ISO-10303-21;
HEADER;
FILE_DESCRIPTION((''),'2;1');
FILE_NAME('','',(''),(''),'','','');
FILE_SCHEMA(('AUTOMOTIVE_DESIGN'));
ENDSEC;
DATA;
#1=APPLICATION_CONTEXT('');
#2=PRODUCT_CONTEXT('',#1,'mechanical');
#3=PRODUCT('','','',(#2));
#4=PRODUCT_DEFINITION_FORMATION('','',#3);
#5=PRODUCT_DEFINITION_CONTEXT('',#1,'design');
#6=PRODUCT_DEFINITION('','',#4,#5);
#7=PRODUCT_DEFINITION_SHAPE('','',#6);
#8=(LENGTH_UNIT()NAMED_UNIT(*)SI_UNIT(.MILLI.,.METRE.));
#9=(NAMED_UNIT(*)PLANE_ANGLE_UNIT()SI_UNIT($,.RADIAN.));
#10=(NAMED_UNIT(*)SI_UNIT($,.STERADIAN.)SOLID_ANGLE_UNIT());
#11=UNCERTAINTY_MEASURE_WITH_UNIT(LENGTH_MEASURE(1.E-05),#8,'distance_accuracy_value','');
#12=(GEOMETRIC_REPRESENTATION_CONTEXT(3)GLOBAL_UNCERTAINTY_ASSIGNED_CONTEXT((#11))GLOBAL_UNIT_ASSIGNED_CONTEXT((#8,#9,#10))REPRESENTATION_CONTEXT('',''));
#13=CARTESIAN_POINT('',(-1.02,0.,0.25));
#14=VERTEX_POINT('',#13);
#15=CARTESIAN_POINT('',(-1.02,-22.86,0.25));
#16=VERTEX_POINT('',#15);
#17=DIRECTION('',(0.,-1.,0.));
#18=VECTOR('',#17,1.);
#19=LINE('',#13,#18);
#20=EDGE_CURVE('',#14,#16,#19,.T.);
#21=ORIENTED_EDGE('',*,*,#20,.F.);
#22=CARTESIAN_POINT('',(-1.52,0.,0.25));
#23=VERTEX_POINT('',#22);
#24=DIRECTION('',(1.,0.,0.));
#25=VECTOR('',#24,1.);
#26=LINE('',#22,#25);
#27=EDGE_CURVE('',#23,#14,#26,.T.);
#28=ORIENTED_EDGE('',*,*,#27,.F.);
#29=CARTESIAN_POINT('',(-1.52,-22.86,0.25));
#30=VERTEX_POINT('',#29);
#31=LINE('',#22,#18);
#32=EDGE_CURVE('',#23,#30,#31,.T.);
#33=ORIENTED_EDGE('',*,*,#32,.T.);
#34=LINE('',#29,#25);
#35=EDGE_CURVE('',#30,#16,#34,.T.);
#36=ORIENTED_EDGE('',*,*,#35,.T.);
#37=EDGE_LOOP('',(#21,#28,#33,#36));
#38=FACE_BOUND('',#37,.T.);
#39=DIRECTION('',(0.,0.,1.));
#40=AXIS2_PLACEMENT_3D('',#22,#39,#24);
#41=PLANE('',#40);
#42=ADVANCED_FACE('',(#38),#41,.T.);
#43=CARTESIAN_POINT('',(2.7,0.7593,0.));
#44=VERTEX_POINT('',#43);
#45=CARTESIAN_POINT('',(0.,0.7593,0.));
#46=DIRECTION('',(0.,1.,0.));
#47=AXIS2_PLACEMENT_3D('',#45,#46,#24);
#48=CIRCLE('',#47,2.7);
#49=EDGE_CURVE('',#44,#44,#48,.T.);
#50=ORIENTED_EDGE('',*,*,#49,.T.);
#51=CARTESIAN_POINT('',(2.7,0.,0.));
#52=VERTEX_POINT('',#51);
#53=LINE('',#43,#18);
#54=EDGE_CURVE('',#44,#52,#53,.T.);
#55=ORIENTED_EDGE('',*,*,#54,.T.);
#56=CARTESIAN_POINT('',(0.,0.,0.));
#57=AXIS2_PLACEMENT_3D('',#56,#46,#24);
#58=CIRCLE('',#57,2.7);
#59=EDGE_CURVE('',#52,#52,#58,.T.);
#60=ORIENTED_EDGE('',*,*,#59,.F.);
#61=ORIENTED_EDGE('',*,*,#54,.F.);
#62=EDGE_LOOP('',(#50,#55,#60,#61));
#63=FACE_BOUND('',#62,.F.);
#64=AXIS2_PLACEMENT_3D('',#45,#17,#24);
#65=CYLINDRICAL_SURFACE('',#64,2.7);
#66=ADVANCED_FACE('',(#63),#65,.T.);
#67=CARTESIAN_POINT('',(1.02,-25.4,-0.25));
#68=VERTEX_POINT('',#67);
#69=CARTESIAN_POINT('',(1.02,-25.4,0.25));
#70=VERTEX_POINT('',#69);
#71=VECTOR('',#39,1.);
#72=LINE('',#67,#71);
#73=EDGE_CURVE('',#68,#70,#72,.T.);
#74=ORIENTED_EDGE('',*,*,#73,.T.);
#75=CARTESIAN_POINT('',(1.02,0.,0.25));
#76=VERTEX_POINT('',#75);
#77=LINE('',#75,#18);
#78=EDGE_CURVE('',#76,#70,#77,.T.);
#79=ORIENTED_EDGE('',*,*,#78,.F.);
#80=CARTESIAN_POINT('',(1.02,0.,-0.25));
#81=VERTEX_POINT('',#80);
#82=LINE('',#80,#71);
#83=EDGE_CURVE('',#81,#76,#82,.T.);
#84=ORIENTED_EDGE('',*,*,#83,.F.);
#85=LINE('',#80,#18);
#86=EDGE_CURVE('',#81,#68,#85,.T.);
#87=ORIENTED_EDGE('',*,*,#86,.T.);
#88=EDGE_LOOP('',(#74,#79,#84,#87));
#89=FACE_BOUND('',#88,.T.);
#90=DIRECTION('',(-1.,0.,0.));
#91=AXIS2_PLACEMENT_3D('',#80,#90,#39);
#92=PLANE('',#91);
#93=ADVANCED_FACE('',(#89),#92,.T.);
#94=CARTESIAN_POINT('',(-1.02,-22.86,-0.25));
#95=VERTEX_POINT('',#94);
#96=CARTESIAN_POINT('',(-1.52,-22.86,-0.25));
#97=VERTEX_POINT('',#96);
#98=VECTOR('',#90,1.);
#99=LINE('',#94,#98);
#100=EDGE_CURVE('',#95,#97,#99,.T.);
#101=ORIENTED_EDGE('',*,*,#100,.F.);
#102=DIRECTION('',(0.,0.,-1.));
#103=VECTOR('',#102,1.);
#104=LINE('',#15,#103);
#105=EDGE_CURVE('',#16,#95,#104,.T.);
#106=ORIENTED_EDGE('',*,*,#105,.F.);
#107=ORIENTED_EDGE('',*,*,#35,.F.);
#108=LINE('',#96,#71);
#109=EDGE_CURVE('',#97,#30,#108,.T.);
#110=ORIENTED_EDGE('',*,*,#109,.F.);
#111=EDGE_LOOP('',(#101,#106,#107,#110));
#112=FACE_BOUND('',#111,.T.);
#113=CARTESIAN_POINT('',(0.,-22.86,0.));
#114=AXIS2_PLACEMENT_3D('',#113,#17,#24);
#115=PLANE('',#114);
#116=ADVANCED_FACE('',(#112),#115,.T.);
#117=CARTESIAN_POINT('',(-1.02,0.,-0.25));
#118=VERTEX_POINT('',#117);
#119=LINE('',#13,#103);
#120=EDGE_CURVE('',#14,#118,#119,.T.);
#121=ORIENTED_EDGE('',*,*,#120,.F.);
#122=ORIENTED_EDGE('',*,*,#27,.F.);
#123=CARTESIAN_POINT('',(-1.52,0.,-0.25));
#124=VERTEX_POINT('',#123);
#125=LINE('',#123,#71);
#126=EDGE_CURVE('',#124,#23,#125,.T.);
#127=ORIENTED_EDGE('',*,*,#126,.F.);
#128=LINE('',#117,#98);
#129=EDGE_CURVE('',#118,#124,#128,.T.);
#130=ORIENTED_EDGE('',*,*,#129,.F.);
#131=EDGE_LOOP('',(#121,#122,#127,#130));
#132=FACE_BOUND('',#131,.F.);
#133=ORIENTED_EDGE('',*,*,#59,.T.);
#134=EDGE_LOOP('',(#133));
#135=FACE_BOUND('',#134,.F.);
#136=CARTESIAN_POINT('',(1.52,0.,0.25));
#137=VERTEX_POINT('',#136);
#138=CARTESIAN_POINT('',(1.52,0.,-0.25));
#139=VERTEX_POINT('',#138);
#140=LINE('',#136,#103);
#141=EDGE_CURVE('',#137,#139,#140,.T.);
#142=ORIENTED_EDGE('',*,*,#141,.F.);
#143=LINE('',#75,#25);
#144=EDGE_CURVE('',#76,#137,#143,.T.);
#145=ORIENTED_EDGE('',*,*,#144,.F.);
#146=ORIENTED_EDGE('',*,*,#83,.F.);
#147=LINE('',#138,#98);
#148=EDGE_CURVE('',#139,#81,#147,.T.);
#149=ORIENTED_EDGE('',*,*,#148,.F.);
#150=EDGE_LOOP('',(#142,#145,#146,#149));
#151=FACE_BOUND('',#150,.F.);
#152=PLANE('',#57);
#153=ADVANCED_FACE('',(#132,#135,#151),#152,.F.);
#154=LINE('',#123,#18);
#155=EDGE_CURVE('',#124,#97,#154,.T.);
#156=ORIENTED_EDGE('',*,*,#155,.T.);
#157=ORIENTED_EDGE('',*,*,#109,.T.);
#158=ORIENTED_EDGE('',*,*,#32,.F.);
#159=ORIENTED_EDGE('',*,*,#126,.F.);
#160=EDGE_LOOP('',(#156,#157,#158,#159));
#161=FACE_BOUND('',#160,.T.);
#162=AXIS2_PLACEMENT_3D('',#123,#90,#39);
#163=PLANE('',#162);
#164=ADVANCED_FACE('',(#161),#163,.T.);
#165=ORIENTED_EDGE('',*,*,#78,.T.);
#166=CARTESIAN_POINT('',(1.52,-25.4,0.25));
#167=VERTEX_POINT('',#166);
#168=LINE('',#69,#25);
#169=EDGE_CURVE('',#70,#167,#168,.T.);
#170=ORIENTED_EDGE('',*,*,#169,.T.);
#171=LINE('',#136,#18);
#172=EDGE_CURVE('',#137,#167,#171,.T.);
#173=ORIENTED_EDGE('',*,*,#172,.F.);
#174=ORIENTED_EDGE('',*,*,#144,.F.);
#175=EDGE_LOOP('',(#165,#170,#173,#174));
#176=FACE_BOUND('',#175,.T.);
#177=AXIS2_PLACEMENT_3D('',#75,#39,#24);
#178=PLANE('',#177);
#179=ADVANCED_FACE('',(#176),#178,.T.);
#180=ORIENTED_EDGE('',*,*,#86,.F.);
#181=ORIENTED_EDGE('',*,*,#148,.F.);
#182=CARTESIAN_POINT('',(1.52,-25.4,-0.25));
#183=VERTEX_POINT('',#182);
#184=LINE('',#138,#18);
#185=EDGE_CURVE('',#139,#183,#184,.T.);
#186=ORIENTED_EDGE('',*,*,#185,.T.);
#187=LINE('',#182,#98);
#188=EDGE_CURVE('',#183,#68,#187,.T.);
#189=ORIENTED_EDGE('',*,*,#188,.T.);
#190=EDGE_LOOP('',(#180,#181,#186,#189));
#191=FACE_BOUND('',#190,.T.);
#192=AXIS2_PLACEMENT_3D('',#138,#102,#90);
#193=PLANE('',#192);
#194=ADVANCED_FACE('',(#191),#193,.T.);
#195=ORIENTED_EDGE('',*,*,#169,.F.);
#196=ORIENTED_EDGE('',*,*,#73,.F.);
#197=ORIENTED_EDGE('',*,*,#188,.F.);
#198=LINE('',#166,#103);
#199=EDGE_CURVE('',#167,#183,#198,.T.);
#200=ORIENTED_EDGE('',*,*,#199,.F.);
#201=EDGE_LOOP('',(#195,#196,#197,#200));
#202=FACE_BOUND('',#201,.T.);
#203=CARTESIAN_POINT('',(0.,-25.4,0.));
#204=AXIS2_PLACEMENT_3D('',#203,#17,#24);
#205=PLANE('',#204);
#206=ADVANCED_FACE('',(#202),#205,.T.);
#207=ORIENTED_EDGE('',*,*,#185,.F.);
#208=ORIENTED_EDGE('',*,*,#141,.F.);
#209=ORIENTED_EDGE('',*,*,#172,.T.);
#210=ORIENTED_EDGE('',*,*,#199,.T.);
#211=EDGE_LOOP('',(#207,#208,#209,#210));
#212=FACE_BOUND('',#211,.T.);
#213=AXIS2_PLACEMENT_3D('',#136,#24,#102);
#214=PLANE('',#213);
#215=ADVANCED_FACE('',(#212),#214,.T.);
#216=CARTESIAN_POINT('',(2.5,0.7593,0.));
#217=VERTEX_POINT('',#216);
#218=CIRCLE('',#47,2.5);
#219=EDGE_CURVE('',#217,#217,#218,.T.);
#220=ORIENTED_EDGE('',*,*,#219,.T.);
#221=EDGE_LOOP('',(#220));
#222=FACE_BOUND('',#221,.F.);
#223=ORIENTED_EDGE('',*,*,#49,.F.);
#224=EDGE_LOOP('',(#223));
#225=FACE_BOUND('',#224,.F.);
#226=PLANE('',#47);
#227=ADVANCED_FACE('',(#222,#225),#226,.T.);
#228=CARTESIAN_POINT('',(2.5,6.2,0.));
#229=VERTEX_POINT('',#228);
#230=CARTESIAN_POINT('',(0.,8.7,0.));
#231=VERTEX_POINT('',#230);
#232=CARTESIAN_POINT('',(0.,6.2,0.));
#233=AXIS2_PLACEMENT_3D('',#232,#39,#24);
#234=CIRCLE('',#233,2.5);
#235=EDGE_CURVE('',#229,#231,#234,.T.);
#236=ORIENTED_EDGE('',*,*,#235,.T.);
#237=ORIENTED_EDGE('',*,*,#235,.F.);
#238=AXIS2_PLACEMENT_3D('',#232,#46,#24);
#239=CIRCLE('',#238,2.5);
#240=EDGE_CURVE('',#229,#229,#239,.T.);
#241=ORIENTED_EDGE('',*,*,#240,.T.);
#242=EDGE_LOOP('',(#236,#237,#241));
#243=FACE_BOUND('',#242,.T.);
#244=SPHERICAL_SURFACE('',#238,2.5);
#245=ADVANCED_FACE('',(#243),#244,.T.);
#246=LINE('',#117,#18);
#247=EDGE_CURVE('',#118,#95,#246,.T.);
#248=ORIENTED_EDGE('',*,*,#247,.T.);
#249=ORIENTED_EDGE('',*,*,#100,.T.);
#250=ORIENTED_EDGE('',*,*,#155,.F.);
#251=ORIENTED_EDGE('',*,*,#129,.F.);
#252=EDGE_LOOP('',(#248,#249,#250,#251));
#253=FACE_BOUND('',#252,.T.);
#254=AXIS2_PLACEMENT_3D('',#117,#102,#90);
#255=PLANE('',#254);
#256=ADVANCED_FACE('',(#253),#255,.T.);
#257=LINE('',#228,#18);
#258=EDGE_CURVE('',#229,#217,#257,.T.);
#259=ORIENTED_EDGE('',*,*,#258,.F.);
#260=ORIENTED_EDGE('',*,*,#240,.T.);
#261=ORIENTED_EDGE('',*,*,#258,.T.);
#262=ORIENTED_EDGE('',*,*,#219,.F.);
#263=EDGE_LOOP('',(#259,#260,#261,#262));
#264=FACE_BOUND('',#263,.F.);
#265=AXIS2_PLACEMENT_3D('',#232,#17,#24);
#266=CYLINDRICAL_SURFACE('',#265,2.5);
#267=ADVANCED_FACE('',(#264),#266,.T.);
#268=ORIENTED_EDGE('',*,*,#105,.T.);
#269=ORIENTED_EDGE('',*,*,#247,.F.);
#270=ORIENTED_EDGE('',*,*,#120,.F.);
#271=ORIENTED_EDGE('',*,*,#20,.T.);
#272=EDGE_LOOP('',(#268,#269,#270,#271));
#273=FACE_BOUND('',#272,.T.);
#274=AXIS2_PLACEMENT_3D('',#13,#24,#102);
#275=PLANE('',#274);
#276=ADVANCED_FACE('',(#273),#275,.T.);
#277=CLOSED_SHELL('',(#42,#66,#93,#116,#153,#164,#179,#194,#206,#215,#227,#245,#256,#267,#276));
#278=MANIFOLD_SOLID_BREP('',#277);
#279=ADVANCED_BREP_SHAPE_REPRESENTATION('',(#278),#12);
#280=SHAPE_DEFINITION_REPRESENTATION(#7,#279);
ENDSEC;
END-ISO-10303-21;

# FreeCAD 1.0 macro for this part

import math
import FreeCAD as App
import Part
import Sketcher
from FreeCAD import Vector


def add_polygon(sketch, points):
    """Adds a closed chain of lines whose ends are joined by coincident constraints."""
    first, n = sketch.GeometryCount, len(points)
    for a, b in zip(points, points[1:] + points[:1]):
        sketch.addGeometry(Part.LineSegment(App.Vector(*a, 0), App.Vector(*b, 0)), False)
    for i in range(n):
        sketch.addConstraint(Sketcher.Constraint("Coincident", first + i, 2, first + (i + 1) % n, 1))

doc = App.newDocument("Part")
body = doc.addObject("PartDesign::Body", "Body")

sketch1 = body.newObject("Sketcher::SketchObject", "Sketch")
sketch1.AttachmentSupport = (doc.getObject("XY_Plane"), [""])
sketch1.MapMode = "FlatFace"
sketch1.addGeometry([
    Part.LineSegment(Vector(0, 8.7, 0), Vector(0, 0, 0)),
    Part.LineSegment(Vector(0, 0, 0), Vector(2.7, 0, 0)),
    Part.LineSegment(Vector(2.7, 0, 0), Vector(2.7, 0.76, 0)),
    Part.LineSegment(Vector(2.7, 0.76, 0), Vector(2.5, 0.76, 0)),
    Part.LineSegment(Vector(2.5, 0.76, 0), Vector(2.5, 6.2, 0)),
    Part.ArcOfCircle(Part.Circle(Vector(0, 6.2, 0), Vector(0, 0, 1), 2.5), math.radians(0), math.radians(90)),
], False)
sketch1.addConstraint([
    Sketcher.Constraint("Coincident", 0, 2, 1, 1),
    Sketcher.Constraint("Coincident", 1, 2, 2, 1),
    Sketcher.Constraint("Coincident", 2, 2, 3, 1),
    Sketcher.Constraint("Coincident", 3, 2, 4, 1),
    Sketcher.Constraint("Tangent", 4, 2, 5, 1),
    Sketcher.Constraint("Coincident", 5, 2, 0, 1),
    Sketcher.Constraint("Vertical", 0),
    Sketcher.Constraint("Horizontal", 1),
    Sketcher.Constraint("Vertical", 2),
    Sketcher.Constraint("Horizontal", 3),
    Sketcher.Constraint("Vertical", 4),
    Sketcher.Constraint("Coincident", 0, 2, -1, 1),
    Sketcher.Constraint("PointOnObject", 5, 3, -2),
    Sketcher.Constraint("Radius", 5, 2.5),
    Sketcher.Constraint("DistanceX", 3, 2, 3, 1, 0.2),
    Sketcher.Constraint("DistanceY", 0, 2, 0, 1, 8.7),
    Sketcher.Constraint("DistanceY", 2, 1, 2, 2, 0.7593),
])
revolution = body.newObject("PartDesign::Revolution", "Revolution")
revolution.Profile = sketch1
revolution.ReferenceAxis = (sketch1, ["V_Axis"])
revolution.Angle = 360

sketch2 = body.newObject("Sketcher::SketchObject", "Sketch001")
sketch2.AttachmentSupport = (doc.getObject("XZ_Plane"), [""])
sketch2.MapMode = "FlatFace"
add_polygon(sketch2, [(1.5, 0.2), (1, 0.2), (1, -0.2), (1.5, -0.2)])
sketch2.addConstraint([
    Sketcher.Constraint("Horizontal", 0),
    Sketcher.Constraint("Vertical", 1),
    Sketcher.Constraint("Horizontal", 2),
    Sketcher.Constraint("Vertical", 3),
    Sketcher.Constraint("Equal", 2, 1),
    Sketcher.Constraint("DistanceX", 0, 2, 0, 1, 0.5),
    Sketcher.Constraint("DistanceX", -1, 1, 0, 2, 1.02),
    Sketcher.Constraint("DistanceY", -1, 1, 0, 2, 0.25),
])
pad1 = body.newObject("PartDesign::Pad", "Pad")
pad1.Profile = sketch2
pad1.Length = 25.4

sketch3 = body.newObject("Sketcher::SketchObject", "Sketch002")
sketch3.AttachmentSupport = (doc.getObject("XZ_Plane"), [""])
sketch3.MapMode = "FlatFace"
add_polygon(sketch3, [(-1, 0.2), (-1.5, 0.2), (-1.5, -0.2), (-1, -0.2)])
sketch3.addConstraint([
    Sketcher.Constraint("Horizontal", 0),
    Sketcher.Constraint("Vertical", 1),
    Sketcher.Constraint("Horizontal", 2),
    Sketcher.Constraint("Vertical", 3),
    Sketcher.Constraint("Equal", 2, 1),
    Sketcher.Constraint("DistanceX", 0, 2, 0, 1, 0.5),
    Sketcher.Constraint("DistanceX", 2, 2, -1, 1, 1.02),
    Sketcher.Constraint("DistanceY", -1, 1, 0, 2, 0.25),
])
pad2 = body.newObject("PartDesign::Pad", "Pad001")
pad2.Profile = sketch3
pad2.Length = 22.86

doc.recompute()
